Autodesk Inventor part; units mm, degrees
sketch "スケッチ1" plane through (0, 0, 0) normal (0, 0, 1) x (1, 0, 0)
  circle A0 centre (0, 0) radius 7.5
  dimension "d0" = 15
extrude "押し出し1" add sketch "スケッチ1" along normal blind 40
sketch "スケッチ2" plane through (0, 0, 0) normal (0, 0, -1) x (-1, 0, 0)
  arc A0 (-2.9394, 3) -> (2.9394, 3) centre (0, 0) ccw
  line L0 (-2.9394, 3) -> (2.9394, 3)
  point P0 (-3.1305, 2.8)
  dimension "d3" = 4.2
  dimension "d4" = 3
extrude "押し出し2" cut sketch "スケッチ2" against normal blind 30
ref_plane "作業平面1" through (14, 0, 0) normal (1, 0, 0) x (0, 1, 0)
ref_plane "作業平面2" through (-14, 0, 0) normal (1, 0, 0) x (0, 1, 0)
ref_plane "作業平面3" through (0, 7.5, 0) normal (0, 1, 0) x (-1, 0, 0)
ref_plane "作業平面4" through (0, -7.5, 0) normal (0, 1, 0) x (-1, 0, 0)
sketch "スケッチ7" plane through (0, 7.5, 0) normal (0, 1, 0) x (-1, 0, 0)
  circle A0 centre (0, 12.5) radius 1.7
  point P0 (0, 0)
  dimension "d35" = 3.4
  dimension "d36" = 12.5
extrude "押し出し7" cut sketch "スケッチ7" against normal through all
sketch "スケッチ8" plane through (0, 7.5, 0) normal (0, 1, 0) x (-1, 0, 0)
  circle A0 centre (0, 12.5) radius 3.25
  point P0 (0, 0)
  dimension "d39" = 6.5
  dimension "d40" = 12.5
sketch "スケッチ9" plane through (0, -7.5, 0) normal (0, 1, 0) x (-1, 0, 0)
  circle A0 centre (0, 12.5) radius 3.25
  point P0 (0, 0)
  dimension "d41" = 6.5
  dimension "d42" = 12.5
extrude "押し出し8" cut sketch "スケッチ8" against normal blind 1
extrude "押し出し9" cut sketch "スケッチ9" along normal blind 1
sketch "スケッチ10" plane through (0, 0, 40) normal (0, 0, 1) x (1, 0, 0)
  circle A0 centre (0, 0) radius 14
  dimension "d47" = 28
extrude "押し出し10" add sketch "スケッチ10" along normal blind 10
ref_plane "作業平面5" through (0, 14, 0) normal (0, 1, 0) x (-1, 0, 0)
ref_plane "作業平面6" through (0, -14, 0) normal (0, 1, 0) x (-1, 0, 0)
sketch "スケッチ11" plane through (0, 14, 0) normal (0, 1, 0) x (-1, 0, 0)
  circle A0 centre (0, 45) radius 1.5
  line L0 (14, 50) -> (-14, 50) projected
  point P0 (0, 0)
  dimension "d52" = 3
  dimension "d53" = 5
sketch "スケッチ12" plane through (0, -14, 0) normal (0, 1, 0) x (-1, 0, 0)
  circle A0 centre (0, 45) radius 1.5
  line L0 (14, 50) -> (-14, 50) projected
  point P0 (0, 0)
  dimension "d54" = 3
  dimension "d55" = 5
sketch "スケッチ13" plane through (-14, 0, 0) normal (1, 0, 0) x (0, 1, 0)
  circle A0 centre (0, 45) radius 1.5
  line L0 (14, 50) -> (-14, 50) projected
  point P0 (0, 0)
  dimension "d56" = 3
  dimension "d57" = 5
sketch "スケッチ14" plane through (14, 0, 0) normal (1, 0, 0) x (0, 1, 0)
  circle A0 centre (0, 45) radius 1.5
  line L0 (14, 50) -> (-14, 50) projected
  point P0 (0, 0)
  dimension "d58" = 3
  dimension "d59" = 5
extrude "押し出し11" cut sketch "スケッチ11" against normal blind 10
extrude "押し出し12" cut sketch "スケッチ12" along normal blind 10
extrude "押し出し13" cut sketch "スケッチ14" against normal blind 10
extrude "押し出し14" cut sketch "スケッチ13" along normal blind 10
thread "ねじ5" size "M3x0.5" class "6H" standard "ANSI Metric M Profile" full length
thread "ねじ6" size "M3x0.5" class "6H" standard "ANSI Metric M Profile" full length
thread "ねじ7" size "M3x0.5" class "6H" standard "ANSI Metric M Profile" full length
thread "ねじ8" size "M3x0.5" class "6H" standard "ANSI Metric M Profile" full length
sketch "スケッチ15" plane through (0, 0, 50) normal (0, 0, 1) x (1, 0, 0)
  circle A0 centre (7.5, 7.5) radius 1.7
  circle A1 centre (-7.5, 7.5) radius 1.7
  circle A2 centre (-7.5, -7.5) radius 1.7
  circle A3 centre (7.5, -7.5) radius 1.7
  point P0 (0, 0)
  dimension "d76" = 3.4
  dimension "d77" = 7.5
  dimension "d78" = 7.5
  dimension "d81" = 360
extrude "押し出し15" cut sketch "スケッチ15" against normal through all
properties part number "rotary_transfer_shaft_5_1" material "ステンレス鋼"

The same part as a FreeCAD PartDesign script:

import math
import FreeCAD as App
import Part
import Sketcher
from FreeCAD import Vector

doc = App.newDocument("Part")
params = doc.addObject("Spreadsheet::Sheet", "Params")
for row, (alias, value) in enumerate([
    ("sketch1_diameter", "15 mm"),
    ("pad1_length", "40 mm"),
    ("sketch2_radius", "4.2 mm"),
    ("pocket1_length", "30 mm"),
    ("sketch3_diameter", "3.4 mm"),
    ("sketch4_diameter", "6.5 mm"),
    ("pocket3_length", "1 mm"),
    ("sketch5_diameter", "6.5 mm"),
    ("pocket4_length", "1 mm"),
    ("sketch6_diameter", "28 mm"),
    ("pad2_length", "10 mm"),
    ("sketch7_diameter", "3 mm"),
    ("pocket5_length", "10 mm"),
    ("sketch8_diameter", "3 mm"),
    ("pocket6_length", "10 mm"),
    ("sketch9_diameter", "3 mm"),
    ("pocket7_length", "10 mm"),
    ("sketch10_diameter", "3 mm"),
    ("pocket8_length", "10 mm"),
    ("sketch11_diameter", "3.4 mm"),
], start=1):
    params.set(f"A{row}", alias)
    params.set(f"B{row}", "=" + value)
    params.setAlias(f"B{row}", alias)

body = doc.addObject("PartDesign::Body", "Body")

# Sketch on XY plane
sketch1 = body.newObject("Sketcher::SketchObject", "Sketch")
sketch1.AttachmentSupport = (doc.getObject("XY_Plane"), [""])
sketch1.MapMode = "FlatFace"
sketch1.addGeometry(Part.Circle(Vector(0, 0, 0), Vector(0, 0, 1), 7.5), False)
sketch1.addConstraint([
    Sketcher.Constraint("Coincident", 0, 3, -1, 1),
    Sketcher.Constraint("Diameter", 0, 15.0),
])
sketch1.setExpression("Constraints[1]", "Params.sketch1_diameter")
pad1 = body.newObject("PartDesign::Pad", "Pad")
pad1.Profile = sketch1
pad1.setExpression("Length", "Params.pad1_length")

# Sketch on XY plane
sketch2 = body.newObject("Sketcher::SketchObject", "Sketch001")
sketch2.AttachmentSupport = (doc.getObject("XY_Plane"), [""])
sketch2.MapMode = "FlatFace"
sketch2.addGeometry([
    Part.LineSegment(Vector(-2.9394, 3, 0), Vector(2.9394, 3, 0)),
    Part.ArcOfCircle(Part.Circle(Vector(0, 0, 0), Vector(0, 0, 1), 4.200009), math.radians(134.415429), math.radians(405.584571)),
], False)
sketch2.addConstraint([
    Sketcher.Constraint("Coincident", 0, 1, 1, 1),
    Sketcher.Constraint("Coincident", 1, 2, 0, 2),
    Sketcher.Constraint("Horizontal", 0),
    Sketcher.Constraint("Coincident", 1, 3, -1, 1),
    Sketcher.Constraint("Radius", 1, 4.2),
    Sketcher.Constraint("DistanceY", -1, 1, 0, 1, 3.0),
])
sketch2.setExpression("Constraints[4]", "Params.sketch2_radius")
pocket1 = body.newObject("PartDesign::Pocket", "Pocket")
pocket1.Profile = sketch2
pocket1.setExpression("Length", "Params.pocket1_length")
pocket1.Reversed = True

# Sketch on XZ plane
sketch3 = body.newObject("Sketcher::SketchObject", "Sketch002")
sketch3.AttachmentSupport = (doc.getObject("XZ_Plane"), [""])
sketch3.MapMode = "FlatFace"
sketch3.AttachmentOffset = App.Placement(Vector(0, 0, -7.5), App.Rotation())
sketch3.addGeometry(Part.Circle(Vector(0, 12.5, 0), Vector(0, 0, 1), 1.7), False)
sketch3.addConstraint([
    Sketcher.Constraint("PointOnObject", 0, 3, -2),
    Sketcher.Constraint("Diameter", 0, 3.4),
    Sketcher.Constraint("DistanceY", -1, 1, 0, 3, 12.5),
])
sketch3.setExpression("Constraints[1]", "Params.sketch3_diameter")
pocket2 = body.newObject("PartDesign::Pocket", "Pocket001")
pocket2.Profile = sketch3
pocket2.Type = "ThroughAll"
pocket2.Reversed = True

# Sketch on XZ plane
sketch4 = body.newObject("Sketcher::SketchObject", "Sketch003")
sketch4.AttachmentSupport = (doc.getObject("XZ_Plane"), [""])
sketch4.MapMode = "FlatFace"
sketch4.AttachmentOffset = App.Placement(Vector(0, 0, -7.5), App.Rotation())
sketch4.addGeometry(Part.Circle(Vector(0, 12.5, 0), Vector(0, 0, 1), 3.25), False)
sketch4.addConstraint([
    Sketcher.Constraint("PointOnObject", 0, 3, -2),
    Sketcher.Constraint("Diameter", 0, 6.5),
    Sketcher.Constraint("DistanceY", -1, 1, 0, 3, 12.5),
])
sketch4.setExpression("Constraints[1]", "Params.sketch4_diameter")
pocket3 = body.newObject("PartDesign::Pocket", "Pocket002")
pocket3.Profile = sketch4
pocket3.setExpression("Length", "Params.pocket3_length")
pocket3.Reversed = True

# Sketch on XZ plane
sketch5 = body.newObject("Sketcher::SketchObject", "Sketch004")
sketch5.AttachmentSupport = (doc.getObject("XZ_Plane"), [""])
sketch5.MapMode = "FlatFace"
sketch5.AttachmentOffset = App.Placement(Vector(0, 0, 7.5), App.Rotation())
sketch5.addGeometry(Part.Circle(Vector(0, 12.5, 0), Vector(0, 0, 1), 3.25), False)
sketch5.addConstraint([
    Sketcher.Constraint("PointOnObject", 0, 3, -2),
    Sketcher.Constraint("Diameter", 0, 6.5),
    Sketcher.Constraint("DistanceY", -1, 1, 0, 3, 12.5),
])
sketch5.setExpression("Constraints[1]", "Params.sketch5_diameter")
pocket4 = body.newObject("PartDesign::Pocket", "Pocket003")
pocket4.Profile = sketch5
pocket4.setExpression("Length", "Params.pocket4_length")

# Sketch on XY plane
sketch6 = body.newObject("Sketcher::SketchObject", "Sketch005")
sketch6.AttachmentSupport = (doc.getObject("XY_Plane"), [""])
sketch6.MapMode = "FlatFace"
sketch6.AttachmentOffset = App.Placement(Vector(0, 0, 40), App.Rotation())
sketch6.addGeometry(Part.Circle(Vector(0, 0, 0), Vector(0, 0, 1), 14), False)
sketch6.addConstraint([
    Sketcher.Constraint("Coincident", 0, 3, -1, 1),
    Sketcher.Constraint("Diameter", 0, 28.0),
])
sketch6.setExpression("Constraints[1]", "Params.sketch6_diameter")
pad2 = body.newObject("PartDesign::Pad", "Pad001")
pad2.Profile = sketch6
pad2.setExpression("Length", "Params.pad2_length")

# Sketch on XZ plane
sketch7 = body.newObject("Sketcher::SketchObject", "Sketch006")
sketch7.AttachmentSupport = (doc.getObject("XZ_Plane"), [""])
sketch7.MapMode = "FlatFace"
sketch7.AttachmentOffset = App.Placement(Vector(0, 0, -14), App.Rotation())
sketch7.addGeometry(Part.Circle(Vector(0, 45, 0), Vector(0, 0, 1), 1.5), False)
sketch7.addConstraint([
    Sketcher.Constraint("PointOnObject", 0, 3, -2),
    Sketcher.Constraint("Diameter", 0, 3.0),
    Sketcher.Constraint("DistanceY", -1, 1, 0, 3, 45.0),
])
sketch7.setExpression("Constraints[1]", "Params.sketch7_diameter")
pocket5 = body.newObject("PartDesign::Pocket", "Pocket004")
pocket5.Profile = sketch7
pocket5.setExpression("Length", "Params.pocket5_length")
pocket5.Reversed = True

# Sketch on XZ plane
sketch8 = body.newObject("Sketcher::SketchObject", "Sketch007")
sketch8.AttachmentSupport = (doc.getObject("XZ_Plane"), [""])
sketch8.MapMode = "FlatFace"
sketch8.AttachmentOffset = App.Placement(Vector(0, 0, 14), App.Rotation())
sketch8.addGeometry(Part.Circle(Vector(0, 45, 0), Vector(0, 0, 1), 1.5), False)
sketch8.addConstraint([
    Sketcher.Constraint("PointOnObject", 0, 3, -2),
    Sketcher.Constraint("Diameter", 0, 3.0),
    Sketcher.Constraint("DistanceY", -1, 1, 0, 3, 45.0),
])
sketch8.setExpression("Constraints[1]", "Params.sketch8_diameter")
pocket6 = body.newObject("PartDesign::Pocket", "Pocket005")
pocket6.Profile = sketch8
pocket6.setExpression("Length", "Params.pocket6_length")

# Sketch on YZ plane
sketch9 = body.newObject("Sketcher::SketchObject", "Sketch008")
sketch9.AttachmentSupport = (doc.getObject("YZ_Plane"), [""])
sketch9.MapMode = "FlatFace"
sketch9.AttachmentOffset = App.Placement(Vector(0, 0, 14), App.Rotation())
sketch9.addGeometry(Part.Circle(Vector(0, 45, 0), Vector(0, 0, 1), 1.5), False)
sketch9.addConstraint([
    Sketcher.Constraint("PointOnObject", 0, 3, -2),
    Sketcher.Constraint("Diameter", 0, 3.0),
    Sketcher.Constraint("DistanceY", -1, 1, 0, 3, 45.0),
])
sketch9.setExpression("Constraints[1]", "Params.sketch9_diameter")
pocket7 = body.newObject("PartDesign::Pocket", "Pocket006")
pocket7.Profile = sketch9
pocket7.setExpression("Length", "Params.pocket7_length")

# Sketch on YZ plane
sketch10 = body.newObject("Sketcher::SketchObject", "Sketch009")
sketch10.AttachmentSupport = (doc.getObject("YZ_Plane"), [""])
sketch10.MapMode = "FlatFace"
sketch10.AttachmentOffset = App.Placement(Vector(0, 0, -14), App.Rotation())
sketch10.addGeometry(Part.Circle(Vector(0, 45, 0), Vector(0, 0, 1), 1.5), False)
sketch10.addConstraint([
    Sketcher.Constraint("PointOnObject", 0, 3, -2),
    Sketcher.Constraint("Diameter", 0, 3.0),
    Sketcher.Constraint("DistanceY", -1, 1, 0, 3, 45.0),
])
sketch10.setExpression("Constraints[1]", "Params.sketch10_diameter")
pocket8 = body.newObject("PartDesign::Pocket", "Pocket007")
pocket8.Profile = sketch10
pocket8.setExpression("Length", "Params.pocket8_length")
pocket8.Reversed = True

# Sketch on XY plane
sketch11 = body.newObject("Sketcher::SketchObject", "Sketch010")
sketch11.AttachmentSupport = (doc.getObject("XY_Plane"), [""])
sketch11.MapMode = "FlatFace"
sketch11.AttachmentOffset = App.Placement(Vector(0, 0, 50), App.Rotation())
sketch11.addGeometry([
    Part.Circle(Vector(7.5, 7.5, 0), Vector(0, 0, 1), 1.7),
    Part.Circle(Vector(-7.5, 7.5, 0), Vector(0, 0, 1), 1.7),
    Part.Circle(Vector(-7.5, -7.5, 0), Vector(0, 0, 1), 1.7),
    Part.Circle(Vector(7.5, -7.5, 0), Vector(0, 0, 1), 1.7),
], False)
sketch11.addConstraint([
    Sketcher.Constraint("Equal", 0, 1),
    Sketcher.Constraint("Equal", 1, 2),
    Sketcher.Constraint("Equal", 2, 3),
    Sketcher.Constraint("Symmetric", 0, 3, 2, 3, -1, 1),
    Sketcher.Constraint("Symmetric", 1, 3, 3, 3, -1, 1),
    Sketcher.Constraint("Symmetric", 0, 3, 1, 3, -2),
    Sketcher.Constraint("Diameter", 0, 3.4),
    Sketcher.Constraint("DistanceX", -1, 1, 0, 3, 7.5),
    Sketcher.Constraint("DistanceY", -1, 1, 0, 3, 7.5),
])
sketch11.setExpression("Constraints[6]", "Params.sketch11_diameter")
pocket9 = body.newObject("PartDesign::Pocket", "Pocket008")
pocket9.Profile = sketch11
pocket9.Type = "ThroughAll"

doc.recompute()
